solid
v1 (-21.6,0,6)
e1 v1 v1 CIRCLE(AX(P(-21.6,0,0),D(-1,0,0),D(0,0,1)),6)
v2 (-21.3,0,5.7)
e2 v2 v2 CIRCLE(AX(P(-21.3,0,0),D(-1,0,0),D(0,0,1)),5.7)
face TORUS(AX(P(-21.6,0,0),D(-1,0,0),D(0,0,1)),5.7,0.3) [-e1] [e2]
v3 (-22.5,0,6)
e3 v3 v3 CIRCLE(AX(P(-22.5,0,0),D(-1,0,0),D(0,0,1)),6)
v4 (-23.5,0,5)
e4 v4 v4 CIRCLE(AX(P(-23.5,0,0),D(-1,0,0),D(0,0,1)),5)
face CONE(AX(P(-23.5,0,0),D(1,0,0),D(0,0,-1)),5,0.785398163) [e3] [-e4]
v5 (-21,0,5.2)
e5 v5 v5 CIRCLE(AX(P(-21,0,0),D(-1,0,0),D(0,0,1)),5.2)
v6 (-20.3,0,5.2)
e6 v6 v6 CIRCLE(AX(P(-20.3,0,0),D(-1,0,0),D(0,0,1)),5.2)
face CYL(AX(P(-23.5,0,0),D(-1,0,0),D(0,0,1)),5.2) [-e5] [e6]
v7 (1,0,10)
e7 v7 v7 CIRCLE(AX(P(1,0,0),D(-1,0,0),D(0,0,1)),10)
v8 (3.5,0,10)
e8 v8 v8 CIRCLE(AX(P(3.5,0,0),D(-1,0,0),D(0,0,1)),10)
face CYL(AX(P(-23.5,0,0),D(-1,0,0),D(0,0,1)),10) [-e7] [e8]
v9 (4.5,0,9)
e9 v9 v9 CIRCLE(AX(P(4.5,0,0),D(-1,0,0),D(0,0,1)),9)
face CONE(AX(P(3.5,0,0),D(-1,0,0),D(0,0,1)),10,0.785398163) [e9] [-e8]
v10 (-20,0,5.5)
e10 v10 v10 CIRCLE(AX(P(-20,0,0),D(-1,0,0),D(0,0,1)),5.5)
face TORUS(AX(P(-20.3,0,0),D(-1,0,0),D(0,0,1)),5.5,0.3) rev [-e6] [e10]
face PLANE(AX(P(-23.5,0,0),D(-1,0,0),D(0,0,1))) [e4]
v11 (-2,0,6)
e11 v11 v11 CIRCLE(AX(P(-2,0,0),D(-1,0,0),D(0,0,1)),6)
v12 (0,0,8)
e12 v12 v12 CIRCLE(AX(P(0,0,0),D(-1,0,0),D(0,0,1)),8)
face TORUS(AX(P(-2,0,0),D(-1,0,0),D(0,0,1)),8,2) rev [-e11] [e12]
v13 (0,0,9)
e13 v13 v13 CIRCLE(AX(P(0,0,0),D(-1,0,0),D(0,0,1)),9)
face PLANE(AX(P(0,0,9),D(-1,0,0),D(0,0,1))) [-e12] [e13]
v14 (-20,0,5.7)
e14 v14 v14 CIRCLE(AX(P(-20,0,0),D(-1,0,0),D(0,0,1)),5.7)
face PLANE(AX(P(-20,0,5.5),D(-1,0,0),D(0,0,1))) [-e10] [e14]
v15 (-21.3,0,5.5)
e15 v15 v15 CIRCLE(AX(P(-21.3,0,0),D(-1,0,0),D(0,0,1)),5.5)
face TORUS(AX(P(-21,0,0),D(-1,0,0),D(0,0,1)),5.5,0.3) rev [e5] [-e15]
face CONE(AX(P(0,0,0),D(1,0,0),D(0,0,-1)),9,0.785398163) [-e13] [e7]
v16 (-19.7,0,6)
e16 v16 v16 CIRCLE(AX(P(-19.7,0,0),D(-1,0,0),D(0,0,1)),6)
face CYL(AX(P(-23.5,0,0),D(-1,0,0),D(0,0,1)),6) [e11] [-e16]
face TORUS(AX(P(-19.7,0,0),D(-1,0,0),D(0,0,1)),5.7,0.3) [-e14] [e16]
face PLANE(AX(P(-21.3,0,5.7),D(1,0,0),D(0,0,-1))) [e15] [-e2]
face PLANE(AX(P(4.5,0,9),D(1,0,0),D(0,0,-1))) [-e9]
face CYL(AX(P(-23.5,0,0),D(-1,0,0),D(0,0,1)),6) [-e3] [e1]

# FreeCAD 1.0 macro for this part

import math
import FreeCAD as App
import Part
import Sketcher
Q = App.Units.Quantity

doc = App.newDocument("Part")
body = doc.addObject("PartDesign::Body", "Body")

# Sketch on XZ plane
sketch1 = body.newObject("Sketcher::SketchObject", "Sketch")
sketch1.AttachmentSupport = (doc.getObject("XZ_Plane"), [""])
sketch1.MapMode = "FlatFace"
sketch1.addGeometry([
    Part.LineSegment(App.Vector(1, 10, 0), App.Vector(3.5, 10, 0)),  # 0
    Part.LineSegment(App.Vector(3.5, 10, 0), App.Vector(4.5, 9, 0)),  # 1
    Part.LineSegment(App.Vector(4.5, 9, 0), App.Vector(4.5, 0, 0)),  # 2
    Part.LineSegment(App.Vector(4.5, 0, 0), App.Vector(-23.5, 0, 0)),  # 3
    Part.LineSegment(App.Vector(-23.5, 0, 0), App.Vector(-23.5, 5, 0)),  # 4
    Part.LineSegment(App.Vector(-23.5, 5, 0), App.Vector(-22.5, 6, 0)),  # 5
    Part.LineSegment(App.Vector(-22.5, 6, 0), App.Vector(-21.6, 6, 0)),  # 6
    Part.ArcOfCircle(Part.Circle(App.Vector(-21.6, 5.7, 0), App.Vector(0, 0, 1), 0.3), math.radians(0), math.radians(90)),  # 7
    Part.LineSegment(App.Vector(-21.3, 5.7, 0), App.Vector(-21.3, 5.5, 0)),  # 8
    Part.ArcOfCircle(Part.Circle(App.Vector(-21, 5.5, 0), App.Vector(0, 0, 1), 0.3), math.radians(-180), math.radians(-90)),  # 9
    Part.LineSegment(App.Vector(-21, 5.2, 0), App.Vector(-20.3, 5.2, 0)),  # 10
    Part.ArcOfCircle(Part.Circle(App.Vector(-20.3, 5.5, 0), App.Vector(0, 0, 1), 0.3), math.radians(-90), math.radians(0)),  # 11
    Part.LineSegment(App.Vector(-20, 5.5, 0), App.Vector(-20, 5.7, 0)),  # 12
    Part.ArcOfCircle(Part.Circle(App.Vector(-19.7, 5.7, 0), App.Vector(0, 0, 1), 0.3), math.radians(90), math.radians(180)),  # 13
    Part.LineSegment(App.Vector(-19.7, 6, 0), App.Vector(-2, 6, 0)),  # 14
    Part.ArcOfCircle(Part.Circle(App.Vector(-2, 8, 0), App.Vector(0, 0, 1), 2), math.radians(-90), math.radians(0)),  # 15
    Part.LineSegment(App.Vector(0, 8, 0), App.Vector(0, 9, 0)),  # 16
    Part.LineSegment(App.Vector(0, 9, 0), App.Vector(1, 10, 0)),  # 17
], False)
sketch1.addConstraint([
    Sketcher.Constraint("Coincident", 0, 2, 1, 1),
    Sketcher.Constraint("Coincident", 1, 2, 2, 1),
    Sketcher.Constraint("Coincident", 2, 2, 3, 1),
    Sketcher.Constraint("Coincident", 3, 2, 4, 1),
    Sketcher.Constraint("Coincident", 4, 2, 5, 1),
    Sketcher.Constraint("Coincident", 5, 2, 6, 1),
    Sketcher.Constraint("Tangent", 6, 2, 7, 2),
    Sketcher.Constraint("Tangent", 7, 1, 8, 1),
    Sketcher.Constraint("Tangent", 8, 2, 9, 1),
    Sketcher.Constraint("Tangent", 9, 2, 10, 1),
    Sketcher.Constraint("Tangent", 10, 2, 11, 1),
    Sketcher.Constraint("Tangent", 11, 2, 12, 1),
    Sketcher.Constraint("Tangent", 12, 2, 13, 2),
    Sketcher.Constraint("Tangent", 13, 1, 14, 1),
    Sketcher.Constraint("Tangent", 14, 2, 15, 1),
    Sketcher.Constraint("Tangent", 15, 2, 16, 1),
    Sketcher.Constraint("Coincident", 16, 2, 17, 1),
    Sketcher.Constraint("Coincident", 17, 2, 0, 1),
    Sketcher.Constraint("Horizontal", 0),
    Sketcher.Constraint("Vertical", 2),
    Sketcher.Constraint("Horizontal", 3),
    Sketcher.Constraint("Vertical", 4),
    Sketcher.Constraint("Horizontal", 6),
    Sketcher.Constraint("Vertical", 8),
    Sketcher.Constraint("Horizontal", 10),
    Sketcher.Constraint("Vertical", 12),
    Sketcher.Constraint("Horizontal", 14),
    Sketcher.Constraint("Vertical", 16),
    Sketcher.Constraint("Equal", 7, 9),
    Sketcher.Constraint("Equal", 9, 11),
    Sketcher.Constraint("Equal", 11, 13),
    Sketcher.Constraint("PointOnObject", 2, 2, -1),
    Sketcher.Constraint("PointOnObject", 15, 2, -2),
    Sketcher.Constraint("Perpendicular", 1, 5),
    Sketcher.Constraint("Parallel", 5, 17),
    Sketcher.Constraint("Horizontal", 7, 3, 13, 3),
    Sketcher.Constraint("Horizontal", 1, 2, 16, 2),
    Sketcher.Constraint("Equal", 1, 5),
    Sketcher.Constraint("Equal", 5, 17),
    Sketcher.Constraint("Radius", 15, Q("2 mm")),
    Sketcher.Constraint("Radius", 7, Q("0.3 mm")),
    Sketcher.Constraint("DistanceX", 3, 2, 3, 1, Q("28 mm")),
    Sketcher.Constraint("DistanceY", 2, 2, 2, 1, Q("9 mm")),
    Sketcher.Constraint("DistanceY", 4, 1, 4, 2, Q("5 mm")),
    Sketcher.Constraint("DistanceY", 16, 1, 16, 2, Q("1 mm")),
    Sketcher.Constraint("DistanceX", 0, 1, 0, 2, Q("2.5 mm")),
    Sketcher.Constraint("DistanceX", 6, 1, 6, 2, Q("0.9 mm")),
    Sketcher.Constraint("DistanceX", 10, 1, 10, 2, Q("0.7 mm")),
    Sketcher.Constraint("DistanceY", 8, 2, 8, 1, Q("0.2 mm")),
])
revolution = body.newObject("PartDesign::Revolution", "Revolution")
revolution.Profile = sketch1
revolution.ReferenceAxis = (sketch1, ["H_Axis"])
revolution.Angle = 360

doc.recompute()
